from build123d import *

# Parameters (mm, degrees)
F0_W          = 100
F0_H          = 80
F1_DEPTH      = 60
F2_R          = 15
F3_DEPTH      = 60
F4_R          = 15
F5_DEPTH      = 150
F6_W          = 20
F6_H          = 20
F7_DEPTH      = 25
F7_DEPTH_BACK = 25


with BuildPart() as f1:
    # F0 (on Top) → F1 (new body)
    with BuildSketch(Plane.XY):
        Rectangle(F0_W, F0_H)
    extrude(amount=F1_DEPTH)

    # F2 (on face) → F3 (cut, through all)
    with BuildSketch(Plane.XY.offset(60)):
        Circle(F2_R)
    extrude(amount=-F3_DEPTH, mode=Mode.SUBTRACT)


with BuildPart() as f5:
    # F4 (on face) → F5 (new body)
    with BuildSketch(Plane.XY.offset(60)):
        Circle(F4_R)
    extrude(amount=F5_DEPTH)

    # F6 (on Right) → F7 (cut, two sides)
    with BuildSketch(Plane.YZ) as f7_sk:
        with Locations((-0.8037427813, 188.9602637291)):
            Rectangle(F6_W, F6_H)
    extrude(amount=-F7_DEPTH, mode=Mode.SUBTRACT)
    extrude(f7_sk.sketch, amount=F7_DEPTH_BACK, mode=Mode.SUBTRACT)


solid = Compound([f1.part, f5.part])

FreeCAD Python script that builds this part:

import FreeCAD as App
import Part
import Sketcher


def add_polygon(sketch, points):
    """Adds a closed chain of lines whose ends are joined by coincident constraints."""
    first, n = sketch.GeometryCount, len(points)
    for a, b in zip(points, points[1:] + points[:1]):
        sketch.addGeometry(Part.LineSegment(App.Vector(*a, 0), App.Vector(*b, 0)), False)
    for i in range(n):
        sketch.addConstraint(Sketcher.Constraint("Coincident", first + i, 2, first + (i + 1) % n, 1))

doc = App.newDocument("Part")
params = doc.addObject("Spreadsheet::Sheet", "Params")
for row, (alias, value) in enumerate([
    ("sketch1_width", "100 mm"),
    ("sketch1_height", "80 mm"),
    ("pad1_length", "60 mm"),
    ("sketch2_diameter", "30 mm"),
    ("sketch3_diameter", "30 mm"),
    ("pad2_length", "150 mm"),
    ("sketch4_width", "20 mm"),
], start=1):
    params.set(f"A{row}", alias)
    params.set(f"B{row}", "=" + value)
    params.setAlias(f"B{row}", alias)

body = doc.addObject("PartDesign::Body", "Body")

# Sketch on XY plane
sketch1 = body.newObject("Sketcher::SketchObject", "Sketch")
sketch1.AttachmentSupport = (doc.getObject("XY_Plane"), [""])
sketch1.MapMode = "FlatFace"
add_polygon(sketch1, [(-50, 40), (-50, -40), (50, -40), (50, 40)])  # lines 0-3
sketch1.addConstraint(Sketcher.Constraint("Vertical", 0))
sketch1.addConstraint(Sketcher.Constraint("Horizontal", 1))
sketch1.addConstraint(Sketcher.Constraint("Vertical", 2))
sketch1.addConstraint(Sketcher.Constraint("Horizontal", 3))
sketch1.addConstraint(Sketcher.Constraint("Symmetric", 0, 2, 2, 2, -1, 1))
sketch1.addConstraint(Sketcher.Constraint("DistanceX", 1, 1, 1, 2, 100.0))
sketch1.addConstraint(Sketcher.Constraint("DistanceY", 0, 2, 0, 1, 80.0))
sketch1.setExpression("Constraints[9]", "Params.sketch1_width")
sketch1.setExpression("Constraints[10]", "Params.sketch1_height")
pad1 = body.newObject("PartDesign::Pad", "Pad")
pad1.Profile = sketch1
pad1.setExpression("Length", "Params.pad1_length")

# Sketch on XY plane
sketch2 = body.newObject("Sketcher::SketchObject", "Sketch001")
sketch2.AttachmentSupport = (doc.getObject("XY_Plane"), [""])
sketch2.MapMode = "FlatFace"
sketch2.AttachmentOffset = App.Placement(App.Vector(0, 0, 60), App.Rotation())
sketch2.addGeometry(Part.Circle(App.Vector(0, 0, 0), App.Vector(0, 0, 1), 15), False)
sketch2.addConstraint(Sketcher.Constraint("Coincident", 0, 3, -1, 1))
sketch2.addConstraint(Sketcher.Constraint("Diameter", 0, 30.0))
sketch2.setExpression("Constraints[1]", "Params.sketch2_diameter")
pocket1 = body.newObject("PartDesign::Pocket", "Pocket")
pocket1.Profile = sketch2
pocket1.Type = "ThroughAll"
body2 = doc.addObject("PartDesign::Body", "Body001")

# Sketch on XY plane
sketch3 = body2.newObject("Sketcher::SketchObject", "Sketch002")
sketch3.AttachmentSupport = (doc.getObject("XY_Plane001"), [""])
sketch3.MapMode = "FlatFace"
sketch3.AttachmentOffset = App.Placement(App.Vector(0, 0, 60), App.Rotation())
sketch3.addGeometry(Part.Circle(App.Vector(0, 0, 0), App.Vector(0, 0, 1), 15), False)
sketch3.addConstraint(Sketcher.Constraint("Coincident", 0, 3, -1, 1))
sketch3.addConstraint(Sketcher.Constraint("Diameter", 0, 30.0))
sketch3.setExpression("Constraints[1]", "Params.sketch3_diameter")
pad2 = body2.newObject("PartDesign::Pad", "Pad001")
pad2.Profile = sketch3
pad2.setExpression("Length", "Params.pad2_length")

# Sketch on YZ plane
sketch4 = body2.newObject("Sketcher::SketchObject", "Sketch003")
sketch4.AttachmentSupport = (doc.getObject("YZ_Plane001"), [""])
sketch4.MapMode = "FlatFace"
add_polygon(sketch4, [(-11, 199), (-11, 179), (9, 179), (9, 199)])  # lines 0-3
sketch4.addConstraint(Sketcher.Constraint("Vertical", 0))
sketch4.addConstraint(Sketcher.Constraint("Horizontal", 1))
sketch4.addConstraint(Sketcher.Constraint("Vertical", 2))
sketch4.addConstraint(Sketcher.Constraint("Horizontal", 3))
sketch4.addConstraint(Sketcher.Constraint("Equal", 3, 0))
sketch4.addConstraint(Sketcher.Constraint("DistanceX", 1, 1, 1, 2, 20.0))
sketch4.addConstraint(Sketcher.Constraint("DistanceX", 0, 2, -1, 1, 10.803743))
sketch4.addConstraint(Sketcher.Constraint("DistanceY", -1, 1, 0, 2, 178.960264))
sketch4.setExpression("Constraints[9]", "Params.sketch4_width")
pocket2 = body2.newObject("PartDesign::Pocket", "Pocket001")
pocket2.Profile = sketch4
pocket2.Type = "ThroughAll"
pocket2.Midplane = True

doc.recompute()
